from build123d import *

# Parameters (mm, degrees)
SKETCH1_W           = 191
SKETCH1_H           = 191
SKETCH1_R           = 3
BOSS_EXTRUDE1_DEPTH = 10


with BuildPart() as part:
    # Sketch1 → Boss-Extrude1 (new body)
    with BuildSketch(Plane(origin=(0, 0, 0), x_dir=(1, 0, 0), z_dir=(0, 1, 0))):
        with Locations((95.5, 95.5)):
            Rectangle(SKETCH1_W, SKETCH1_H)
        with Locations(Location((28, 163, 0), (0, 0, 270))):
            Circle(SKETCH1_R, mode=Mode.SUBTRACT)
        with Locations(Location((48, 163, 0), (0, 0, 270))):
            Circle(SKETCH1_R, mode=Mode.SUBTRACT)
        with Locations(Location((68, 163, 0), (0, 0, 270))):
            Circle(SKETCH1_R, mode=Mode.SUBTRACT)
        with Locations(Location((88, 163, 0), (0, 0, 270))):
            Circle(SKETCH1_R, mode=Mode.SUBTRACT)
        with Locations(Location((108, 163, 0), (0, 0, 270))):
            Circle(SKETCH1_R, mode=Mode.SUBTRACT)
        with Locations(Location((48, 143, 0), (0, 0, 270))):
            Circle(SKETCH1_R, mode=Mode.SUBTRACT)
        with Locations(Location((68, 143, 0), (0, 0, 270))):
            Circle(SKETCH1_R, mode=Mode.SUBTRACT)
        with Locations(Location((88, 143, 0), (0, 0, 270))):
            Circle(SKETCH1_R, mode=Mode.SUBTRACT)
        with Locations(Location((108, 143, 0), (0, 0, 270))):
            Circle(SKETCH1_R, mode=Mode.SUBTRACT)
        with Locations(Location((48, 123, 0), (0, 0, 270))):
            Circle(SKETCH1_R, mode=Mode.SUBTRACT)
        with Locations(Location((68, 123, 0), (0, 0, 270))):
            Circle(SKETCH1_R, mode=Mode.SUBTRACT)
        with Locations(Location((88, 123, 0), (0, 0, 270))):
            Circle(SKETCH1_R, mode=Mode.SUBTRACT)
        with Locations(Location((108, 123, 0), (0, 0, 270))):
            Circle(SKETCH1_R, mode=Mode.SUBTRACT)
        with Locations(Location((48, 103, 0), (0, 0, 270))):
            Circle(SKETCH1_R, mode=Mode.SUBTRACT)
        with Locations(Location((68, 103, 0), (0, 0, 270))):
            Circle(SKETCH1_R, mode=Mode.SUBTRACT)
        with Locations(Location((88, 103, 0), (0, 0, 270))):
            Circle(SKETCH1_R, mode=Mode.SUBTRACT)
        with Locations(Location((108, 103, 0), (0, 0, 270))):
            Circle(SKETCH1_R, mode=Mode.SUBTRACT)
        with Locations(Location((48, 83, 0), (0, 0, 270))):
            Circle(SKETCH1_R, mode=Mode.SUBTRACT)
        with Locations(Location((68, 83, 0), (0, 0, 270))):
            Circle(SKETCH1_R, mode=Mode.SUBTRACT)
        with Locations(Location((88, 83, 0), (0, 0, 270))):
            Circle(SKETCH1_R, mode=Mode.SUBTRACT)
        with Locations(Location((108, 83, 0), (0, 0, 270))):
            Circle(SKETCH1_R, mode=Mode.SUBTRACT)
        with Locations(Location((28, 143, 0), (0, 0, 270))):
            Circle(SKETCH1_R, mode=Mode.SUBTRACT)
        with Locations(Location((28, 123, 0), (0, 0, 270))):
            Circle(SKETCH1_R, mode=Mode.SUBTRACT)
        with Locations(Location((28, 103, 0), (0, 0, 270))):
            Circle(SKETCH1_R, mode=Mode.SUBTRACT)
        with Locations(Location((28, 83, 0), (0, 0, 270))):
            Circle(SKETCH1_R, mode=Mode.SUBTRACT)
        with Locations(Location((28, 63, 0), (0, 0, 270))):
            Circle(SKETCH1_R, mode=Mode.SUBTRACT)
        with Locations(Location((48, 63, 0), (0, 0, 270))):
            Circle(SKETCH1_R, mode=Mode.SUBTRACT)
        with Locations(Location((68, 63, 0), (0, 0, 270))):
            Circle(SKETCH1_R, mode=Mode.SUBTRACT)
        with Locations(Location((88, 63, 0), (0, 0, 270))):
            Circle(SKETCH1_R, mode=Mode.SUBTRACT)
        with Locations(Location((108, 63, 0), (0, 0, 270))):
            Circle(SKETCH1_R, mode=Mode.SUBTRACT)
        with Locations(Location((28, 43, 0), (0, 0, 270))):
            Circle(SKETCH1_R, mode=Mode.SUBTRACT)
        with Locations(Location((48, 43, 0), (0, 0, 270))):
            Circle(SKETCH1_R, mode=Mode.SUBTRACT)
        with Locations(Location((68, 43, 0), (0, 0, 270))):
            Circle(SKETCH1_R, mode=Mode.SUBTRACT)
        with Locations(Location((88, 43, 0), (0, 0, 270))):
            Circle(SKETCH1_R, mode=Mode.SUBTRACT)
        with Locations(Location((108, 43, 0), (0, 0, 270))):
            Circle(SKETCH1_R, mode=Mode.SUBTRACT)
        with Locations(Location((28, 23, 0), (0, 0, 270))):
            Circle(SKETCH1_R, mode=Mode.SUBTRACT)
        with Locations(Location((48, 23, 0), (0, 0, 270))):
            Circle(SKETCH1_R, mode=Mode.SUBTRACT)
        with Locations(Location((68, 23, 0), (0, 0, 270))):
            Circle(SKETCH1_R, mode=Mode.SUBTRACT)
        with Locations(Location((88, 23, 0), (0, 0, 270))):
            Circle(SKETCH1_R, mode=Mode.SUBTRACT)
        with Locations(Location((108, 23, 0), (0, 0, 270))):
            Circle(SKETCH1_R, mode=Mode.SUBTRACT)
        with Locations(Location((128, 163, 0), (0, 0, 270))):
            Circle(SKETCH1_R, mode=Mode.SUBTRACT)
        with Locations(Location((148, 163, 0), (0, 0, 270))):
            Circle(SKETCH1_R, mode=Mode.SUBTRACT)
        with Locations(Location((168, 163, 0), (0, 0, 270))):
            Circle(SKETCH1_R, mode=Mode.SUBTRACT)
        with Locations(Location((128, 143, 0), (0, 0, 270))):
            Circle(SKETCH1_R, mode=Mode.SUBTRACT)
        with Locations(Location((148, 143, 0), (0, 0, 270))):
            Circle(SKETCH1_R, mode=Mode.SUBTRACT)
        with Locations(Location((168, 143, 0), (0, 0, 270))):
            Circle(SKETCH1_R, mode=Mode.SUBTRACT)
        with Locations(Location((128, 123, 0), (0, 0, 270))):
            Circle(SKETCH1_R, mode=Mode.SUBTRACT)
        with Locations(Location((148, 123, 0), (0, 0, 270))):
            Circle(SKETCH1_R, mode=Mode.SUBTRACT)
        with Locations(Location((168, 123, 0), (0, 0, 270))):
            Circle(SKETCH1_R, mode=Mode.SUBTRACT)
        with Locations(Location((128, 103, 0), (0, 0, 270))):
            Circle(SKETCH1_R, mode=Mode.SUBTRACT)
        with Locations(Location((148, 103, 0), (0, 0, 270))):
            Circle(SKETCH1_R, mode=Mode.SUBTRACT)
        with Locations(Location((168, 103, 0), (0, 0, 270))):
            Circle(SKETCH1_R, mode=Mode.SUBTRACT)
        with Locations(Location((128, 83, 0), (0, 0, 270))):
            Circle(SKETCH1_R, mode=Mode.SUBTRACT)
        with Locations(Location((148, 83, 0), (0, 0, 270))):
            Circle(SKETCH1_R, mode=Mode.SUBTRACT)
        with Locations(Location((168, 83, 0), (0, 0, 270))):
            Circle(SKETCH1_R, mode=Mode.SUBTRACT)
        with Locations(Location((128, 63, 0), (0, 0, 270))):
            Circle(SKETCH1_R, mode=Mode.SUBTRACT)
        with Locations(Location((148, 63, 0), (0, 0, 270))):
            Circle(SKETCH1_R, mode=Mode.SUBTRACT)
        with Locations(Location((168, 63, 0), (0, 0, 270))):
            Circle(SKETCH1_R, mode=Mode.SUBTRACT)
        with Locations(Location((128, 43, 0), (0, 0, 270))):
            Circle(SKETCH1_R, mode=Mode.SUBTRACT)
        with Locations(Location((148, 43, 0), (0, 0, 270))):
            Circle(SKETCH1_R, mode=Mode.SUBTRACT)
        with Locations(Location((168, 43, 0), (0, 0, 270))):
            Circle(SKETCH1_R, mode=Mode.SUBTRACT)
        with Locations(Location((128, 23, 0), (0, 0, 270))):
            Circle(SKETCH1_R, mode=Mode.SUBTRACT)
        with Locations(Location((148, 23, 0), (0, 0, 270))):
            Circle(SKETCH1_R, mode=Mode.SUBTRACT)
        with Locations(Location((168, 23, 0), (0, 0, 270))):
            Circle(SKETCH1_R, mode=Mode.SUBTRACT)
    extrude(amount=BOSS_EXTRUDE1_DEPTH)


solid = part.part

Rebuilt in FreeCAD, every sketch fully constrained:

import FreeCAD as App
import Part
import Sketcher
from FreeCAD import Vector


def add_polygon(sketch, points):
    """Adds a closed chain of lines whose ends are joined by coincident constraints."""
    first, n = sketch.GeometryCount, len(points)
    for a, b in zip(points, points[1:] + points[:1]):
        sketch.addGeometry(Part.LineSegment(App.Vector(*a, 0), App.Vector(*b, 0)), False)
    for i in range(n):
        sketch.addConstraint(Sketcher.Constraint("Coincident", first + i, 2, first + (i + 1) % n, 1))

doc = App.newDocument("Part")
body = doc.addObject("PartDesign::Body", "Body")

# Sketch on XZ plane
sketch1 = doc.addObject("Sketcher::SketchObject", "Sketch")
body.addObject(sketch1)
sketch1.AttachmentSupport = (doc.XZ_Plane, [""])
sketch1.MapMode = "FlatFace"
add_polygon(sketch1, [(0, -191), (0, 0), (191, 0), (191, -191)])  # lines 0-3
sketch1.addGeometry(Part.Circle(Vector(28, -23, 0), Vector(0, 0, 1), 3), False)  # 4
sketch1.addGeometry(Part.Circle(Vector(48, -23, 0), Vector(0, 0, 1), 3), False)  # 5
sketch1.addGeometry(Part.Circle(Vector(28, -43, 0), Vector(0, 0, 1), 3), False)  # 6
sketch1.addGeometry(Part.Circle(Vector(48, -43, 0), Vector(0, 0, 1), 3), False)  # 7
sketch1.addGeometry(Part.Circle(Vector(68, -23, 0), Vector(0, 0, 1), 3), False)  # 8
sketch1.addGeometry(Part.Circle(Vector(88, -23, 0), Vector(0, 0, 1), 3), False)  # 9
sketch1.addGeometry(Part.Circle(Vector(68, -43, 0), Vector(0, 0, 1), 3), False)  # 10
sketch1.addGeometry(Part.Circle(Vector(88, -43, 0), Vector(0, 0, 1), 3), False)  # 11
sketch1.addGeometry(Part.Circle(Vector(28, -63, 0), Vector(0, 0, 1), 3), False)  # 12
sketch1.addGeometry(Part.Circle(Vector(48, -63, 0), Vector(0, 0, 1), 3), False)  # 13
sketch1.addGeometry(Part.Circle(Vector(28, -83, 0), Vector(0, 0, 1), 3), False)  # 14
sketch1.addGeometry(Part.Circle(Vector(48, -83, 0), Vector(0, 0, 1), 3), False)  # 15
sketch1.addGeometry(Part.Circle(Vector(68, -63, 0), Vector(0, 0, 1), 3), False)  # 16
sketch1.addGeometry(Part.Circle(Vector(88, -63, 0), Vector(0, 0, 1), 3), False)  # 17
sketch1.addGeometry(Part.Circle(Vector(68, -83, 0), Vector(0, 0, 1), 3), False)  # 18
sketch1.addGeometry(Part.Circle(Vector(88, -83, 0), Vector(0, 0, 1), 3), False)  # 19
sketch1.addGeometry(Part.Circle(Vector(108, -23, 0), Vector(0, 0, 1), 3), False)  # 20
sketch1.addGeometry(Part.Circle(Vector(128, -23, 0), Vector(0, 0, 1), 3), False)  # 21
sketch1.addGeometry(Part.Circle(Vector(108, -43, 0), Vector(0, 0, 1), 3), False)  # 22
sketch1.addGeometry(Part.Circle(Vector(128, -43, 0), Vector(0, 0, 1), 3), False)  # 23
sketch1.addGeometry(Part.Circle(Vector(148, -23, 0), Vector(0, 0, 1), 3), False)  # 24
sketch1.addGeometry(Part.Circle(Vector(168, -23, 0), Vector(0, 0, 1), 3), False)  # 25
sketch1.addGeometry(Part.Circle(Vector(148, -43, 0), Vector(0, 0, 1), 3), False)  # 26
sketch1.addGeometry(Part.Circle(Vector(168, -43, 0), Vector(0, 0, 1), 3), False)  # 27
sketch1.addGeometry(Part.Circle(Vector(108, -63, 0), Vector(0, 0, 1), 3), False)  # 28
sketch1.addGeometry(Part.Circle(Vector(128, -63, 0), Vector(0, 0, 1), 3), False)  # 29
sketch1.addGeometry(Part.Circle(Vector(108, -83, 0), Vector(0, 0, 1), 3), False)  # 30
sketch1.addGeometry(Part.Circle(Vector(128, -83, 0), Vector(0, 0, 1), 3), False)  # 31
sketch1.addGeometry(Part.Circle(Vector(148, -63, 0), Vector(0, 0, 1), 3), False)  # 32
sketch1.addGeometry(Part.Circle(Vector(168, -63, 0), Vector(0, 0, 1), 3), False)  # 33
sketch1.addGeometry(Part.Circle(Vector(148, -83, 0), Vector(0, 0, 1), 3), False)  # 34
sketch1.addGeometry(Part.Circle(Vector(168, -83, 0), Vector(0, 0, 1), 3), False)  # 35
sketch1.addGeometry(Part.Circle(Vector(28, -103, 0), Vector(0, 0, 1), 3), False)  # 36
sketch1.addGeometry(Part.Circle(Vector(48, -103, 0), Vector(0, 0, 1), 3), False)  # 37
sketch1.addGeometry(Part.Circle(Vector(28, -123, 0), Vector(0, 0, 1), 3), False)  # 38
sketch1.addGeometry(Part.Circle(Vector(48, -123, 0), Vector(0, 0, 1), 3), False)  # 39
sketch1.addGeometry(Part.Circle(Vector(68, -103, 0), Vector(0, 0, 1), 3), False)  # 40
sketch1.addGeometry(Part.Circle(Vector(88, -103, 0), Vector(0, 0, 1), 3), False)  # 41
sketch1.addGeometry(Part.Circle(Vector(68, -123, 0), Vector(0, 0, 1), 3), False)  # 42
sketch1.addGeometry(Part.Circle(Vector(88, -123, 0), Vector(0, 0, 1), 3), False)  # 43
sketch1.addGeometry(Part.Circle(Vector(28, -143, 0), Vector(0, 0, 1), 3), False)  # 44
sketch1.addGeometry(Part.Circle(Vector(48, -143, 0), Vector(0, 0, 1), 3), False)  # 45
sketch1.addGeometry(Part.Circle(Vector(28, -163, 0), Vector(0, 0, 1), 3), False)  # 46
sketch1.addGeometry(Part.Circle(Vector(48, -163, 0), Vector(0, 0, 1), 3), False)  # 47
sketch1.addGeometry(Part.Circle(Vector(68, -143, 0), Vector(0, 0, 1), 3), False)  # 48
sketch1.addGeometry(Part.Circle(Vector(88, -143, 0), Vector(0, 0, 1), 3), False)  # 49
sketch1.addGeometry(Part.Circle(Vector(68, -163, 0), Vector(0, 0, 1), 3), False)  # 50
sketch1.addGeometry(Part.Circle(Vector(88, -163, 0), Vector(0, 0, 1), 3), False)  # 51
sketch1.addGeometry(Part.Circle(Vector(108, -103, 0), Vector(0, 0, 1), 3), False)  # 52
sketch1.addGeometry(Part.Circle(Vector(128, -103, 0), Vector(0, 0, 1), 3), False)  # 53
sketch1.addGeometry(Part.Circle(Vector(108, -123, 0), Vector(0, 0, 1), 3), False)  # 54
sketch1.addGeometry(Part.Circle(Vector(128, -123, 0), Vector(0, 0, 1), 3), False)  # 55
sketch1.addGeometry(Part.Circle(Vector(148, -103, 0), Vector(0, 0, 1), 3), False)  # 56
sketch1.addGeometry(Part.Circle(Vector(168, -103, 0), Vector(0, 0, 1), 3), False)  # 57
sketch1.addGeometry(Part.Circle(Vector(148, -123, 0), Vector(0, 0, 1), 3), False)  # 58
sketch1.addGeometry(Part.Circle(Vector(168, -123, 0), Vector(0, 0, 1), 3), False)  # 59
sketch1.addGeometry(Part.Circle(Vector(108, -143, 0), Vector(0, 0, 1), 3), False)  # 60
sketch1.addGeometry(Part.Circle(Vector(128, -143, 0), Vector(0, 0, 1), 3), False)  # 61
sketch1.addGeometry(Part.Circle(Vector(108, -163, 0), Vector(0, 0, 1), 3), False)  # 62
sketch1.addGeometry(Part.Circle(Vector(128, -163, 0), Vector(0, 0, 1), 3), False)  # 63
sketch1.addGeometry(Part.Circle(Vector(148, -143, 0), Vector(0, 0, 1), 3), False)  # 64
sketch1.addGeometry(Part.Circle(Vector(168, -143, 0), Vector(0, 0, 1), 3), False)  # 65
sketch1.addGeometry(Part.Circle(Vector(148, -163, 0), Vector(0, 0, 1), 3), False)  # 66
sketch1.addGeometry(Part.Circle(Vector(168, -163, 0), Vector(0, 0, 1), 3), False)  # 67
sketch1.addConstraint([
    Sketcher.Constraint("Vertical", 0),
    Sketcher.Constraint("Horizontal", 1),
    Sketcher.Constraint("Vertical", 2),
    Sketcher.Constraint("Horizontal", 3),
    Sketcher.Constraint("Coincident", 0, 2, -1, 1),
    Sketcher.Constraint("Equal", 4, 5),
    Sketcher.Constraint("Equal", 5, 6),
    Sketcher.Constraint("Equal", 6, 7),
    Sketcher.Constraint("Equal", 7, 8),
    Sketcher.Constraint("Equal", 8, 9),
    Sketcher.Constraint("Equal", 9, 10),
    Sketcher.Constraint("Equal", 10, 11),
    Sketcher.Constraint("Equal", 11, 12),
    Sketcher.Constraint("Equal", 12, 13),
    Sketcher.Constraint("Equal", 13, 14),
    Sketcher.Constraint("Equal", 14, 15),
    Sketcher.Constraint("Equal", 15, 16),
    Sketcher.Constraint("Equal", 16, 17),
    Sketcher.Constraint("Equal", 17, 18),
    Sketcher.Constraint("Equal", 18, 19),
    Sketcher.Constraint("Equal", 19, 20),
    Sketcher.Constraint("Equal", 20, 21),
    Sketcher.Constraint("Equal", 21, 22),
    Sketcher.Constraint("Equal", 22, 23),
    Sketcher.Constraint("Equal", 23, 24),
    Sketcher.Constraint("Equal", 24, 25),
    Sketcher.Constraint("Equal", 25, 26),
    Sketcher.Constraint("Equal", 26, 27),
    Sketcher.Constraint("Equal", 27, 28),
    Sketcher.Constraint("Equal", 28, 29),
    Sketcher.Constraint("Equal", 29, 30),
    Sketcher.Constraint("Equal", 30, 31),
    Sketcher.Constraint("Equal", 31, 32),
    Sketcher.Constraint("Equal", 32, 33),
    Sketcher.Constraint("Equal", 33, 34),
    Sketcher.Constraint("Equal", 34, 35),
    Sketcher.Constraint("Equal", 35, 36),
    Sketcher.Constraint("Equal", 36, 37),
    Sketcher.Constraint("Equal", 37, 38),
    Sketcher.Constraint("Equal", 38, 39),
    Sketcher.Constraint("Equal", 39, 40),
    Sketcher.Constraint("Equal", 40, 41),
    Sketcher.Constraint("Equal", 41, 42),
    Sketcher.Constraint("Equal", 42, 43),
    Sketcher.Constraint("Equal", 43, 44),
    Sketcher.Constraint("Equal", 44, 45),
    Sketcher.Constraint("Equal", 45, 46),
    Sketcher.Constraint("Equal", 46, 47),
    Sketcher.Constraint("Equal", 47, 48),
    Sketcher.Constraint("Equal", 48, 49),
    Sketcher.Constraint("Equal", 49, 50),
    Sketcher.Constraint("Equal", 50, 51),
    Sketcher.Constraint("Equal", 51, 52),
    Sketcher.Constraint("Equal", 52, 53),
    Sketcher.Constraint("Equal", 53, 54),
    Sketcher.Constraint("Equal", 54, 55),
    Sketcher.Constraint("Equal", 55, 56),
    Sketcher.Constraint("Equal", 56, 57),
    Sketcher.Constraint("Equal", 57, 58),
    Sketcher.Constraint("Equal", 58, 59),
    Sketcher.Constraint("Equal", 59, 60),
    Sketcher.Constraint("Equal", 60, 61),
    Sketcher.Constraint("Equal", 61, 62),
    Sketcher.Constraint("Equal", 62, 63),
    Sketcher.Constraint("Equal", 63, 64),
    Sketcher.Constraint("Equal", 64, 65),
    Sketcher.Constraint("Equal", 65, 66),
    Sketcher.Constraint("Equal", 66, 67),
    Sketcher.Constraint("Horizontal", 4, 3, 5, 3),
    Sketcher.Constraint("Horizontal", 6, 3, 7, 3),
    Sketcher.Constraint("Horizontal", 5, 3, 8, 3),
    Sketcher.Constraint("Horizontal", 8, 3, 9, 3),
    Sketcher.Constraint("Horizontal", 7, 3, 10, 3),
    Sketcher.Constraint("Horizontal", 10, 3, 11, 3),
    Sketcher.Constraint("Horizontal", 12, 3, 13, 3),
    Sketcher.Constraint("Horizontal", 14, 3, 15, 3),
    Sketcher.Constraint("Horizontal", 13, 3, 16, 3),
    Sketcher.Constraint("Horizontal", 16, 3, 17, 3),
    Sketcher.Constraint("Horizontal", 15, 3, 18, 3),
    Sketcher.Constraint("Horizontal", 18, 3, 19, 3),
    Sketcher.Constraint("Horizontal", 9, 3, 20, 3),
    Sketcher.Constraint("Horizontal", 20, 3, 21, 3),
    Sketcher.Constraint("Horizontal", 11, 3, 22, 3),
    Sketcher.Constraint("Horizontal", 22, 3, 23, 3),
    Sketcher.Constraint("Horizontal", 21, 3, 24, 3),
    Sketcher.Constraint("Horizontal", 24, 3, 25, 3),
    Sketcher.Constraint("Horizontal", 23, 3, 26, 3),
    Sketcher.Constraint("Horizontal", 26, 3, 27, 3),
    Sketcher.Constraint("Horizontal", 17, 3, 28, 3),
    Sketcher.Constraint("Horizontal", 28, 3, 29, 3),
    Sketcher.Constraint("Horizontal", 19, 3, 30, 3),
    Sketcher.Constraint("Horizontal", 30, 3, 31, 3),
    Sketcher.Constraint("Horizontal", 29, 3, 32, 3),
    Sketcher.Constraint("Horizontal", 32, 3, 33, 3),
    Sketcher.Constraint("Horizontal", 31, 3, 34, 3),
    Sketcher.Constraint("Horizontal", 34, 3, 35, 3),
    Sketcher.Constraint("Horizontal", 36, 3, 37, 3),
    Sketcher.Constraint("Horizontal", 38, 3, 39, 3),
    Sketcher.Constraint("Horizontal", 37, 3, 40, 3),
    Sketcher.Constraint("Horizontal", 40, 3, 41, 3),
    Sketcher.Constraint("Horizontal", 39, 3, 42, 3),
    Sketcher.Constraint("Horizontal", 42, 3, 43, 3),
    Sketcher.Constraint("Horizontal", 44, 3, 45, 3),
    Sketcher.Constraint("Horizontal", 46, 3, 47, 3),
    Sketcher.Constraint("Horizontal", 45, 3, 48, 3),
    Sketcher.Constraint("Horizontal", 48, 3, 49, 3),
    Sketcher.Constraint("Horizontal", 47, 3, 50, 3),
    Sketcher.Constraint("Horizontal", 50, 3, 51, 3),
    Sketcher.Constraint("Horizontal", 41, 3, 52, 3),
    Sketcher.Constraint("Horizontal", 52, 3, 53, 3),
    Sketcher.Constraint("Horizontal", 43, 3, 54, 3),
    Sketcher.Constraint("Horizontal", 54, 3, 55, 3),
    Sketcher.Constraint("Horizontal", 53, 3, 56, 3),
    Sketcher.Constraint("Horizontal", 56, 3, 57, 3),
    Sketcher.Constraint("Horizontal", 55, 3, 58, 3),
    Sketcher.Constraint("Horizontal", 58, 3, 59, 3),
    Sketcher.Constraint("Horizontal", 49, 3, 60, 3),
    Sketcher.Constraint("Horizontal", 60, 3, 61, 3),
    Sketcher.Constraint("Horizontal", 51, 3, 62, 3),
    Sketcher.Constraint("Horizontal", 62, 3, 63, 3),
    Sketcher.Constraint("Horizontal", 61, 3, 64, 3),
    Sketcher.Constraint("Horizontal", 64, 3, 65, 3),
    Sketcher.Constraint("Horizontal", 63, 3, 66, 3),
    Sketcher.Constraint("Horizontal", 66, 3, 67, 3),
    Sketcher.Constraint("Vertical", 4, 3, 6, 3),
    Sketcher.Constraint("Vertical", 5, 3, 7, 3),
    Sketcher.Constraint("Vertical", 8, 3, 10, 3),
    Sketcher.Constraint("Vertical", 9, 3, 11, 3),
    Sketcher.Constraint("Vertical", 6, 3, 12, 3),
    Sketcher.Constraint("Vertical", 7, 3, 13, 3),
    Sketcher.Constraint("Vertical", 12, 3, 14, 3),
    Sketcher.Constraint("Vertical", 13, 3, 15, 3),
    Sketcher.Constraint("Vertical", 10, 3, 16, 3),
    Sketcher.Constraint("Vertical", 11, 3, 17, 3),
    Sketcher.Constraint("Vertical", 16, 3, 18, 3),
    Sketcher.Constraint("Vertical", 17, 3, 19, 3),
    Sketcher.Constraint("Vertical", 20, 3, 22, 3),
    Sketcher.Constraint("Vertical", 21, 3, 23, 3),
    Sketcher.Constraint("Vertical", 24, 3, 26, 3),
    Sketcher.Constraint("Vertical", 25, 3, 27, 3),
    Sketcher.Constraint("Vertical", 22, 3, 28, 3),
    Sketcher.Constraint("Vertical", 23, 3, 29, 3),
    Sketcher.Constraint("Vertical", 28, 3, 30, 3),
    Sketcher.Constraint("Vertical", 29, 3, 31, 3),
    Sketcher.Constraint("Vertical", 26, 3, 32, 3),
    Sketcher.Constraint("Vertical", 27, 3, 33, 3),
    Sketcher.Constraint("Vertical", 32, 3, 34, 3),
    Sketcher.Constraint("Vertical", 33, 3, 35, 3),
    Sketcher.Constraint("Vertical", 14, 3, 36, 3),
    Sketcher.Constraint("Vertical", 15, 3, 37, 3),
    Sketcher.Constraint("Vertical", 36, 3, 38, 3),
    Sketcher.Constraint("Vertical", 37, 3, 39, 3),
    Sketcher.Constraint("Vertical", 18, 3, 40, 3),
    Sketcher.Constraint("Vertical", 19, 3, 41, 3),
    Sketcher.Constraint("Vertical", 40, 3, 42, 3),
    Sketcher.Constraint("Vertical", 41, 3, 43, 3),
    Sketcher.Constraint("Vertical", 38, 3, 44, 3),
    Sketcher.Constraint("Vertical", 39, 3, 45, 3),
    Sketcher.Constraint("Vertical", 44, 3, 46, 3),
    Sketcher.Constraint("Vertical", 45, 3, 47, 3),
    Sketcher.Constraint("Vertical", 42, 3, 48, 3),
    Sketcher.Constraint("Vertical", 43, 3, 49, 3),
    Sketcher.Constraint("Vertical", 48, 3, 50, 3),
    Sketcher.Constraint("Vertical", 49, 3, 51, 3),
    Sketcher.Constraint("Vertical", 30, 3, 52, 3),
    Sketcher.Constraint("Vertical", 31, 3, 53, 3),
    Sketcher.Constraint("Vertical", 52, 3, 54, 3),
    Sketcher.Constraint("Vertical", 53, 3, 55, 3),
    Sketcher.Constraint("Vertical", 34, 3, 56, 3),
    Sketcher.Constraint("Vertical", 35, 3, 57, 3),
    Sketcher.Constraint("Vertical", 56, 3, 58, 3),
    Sketcher.Constraint("Vertical", 57, 3, 59, 3),
    Sketcher.Constraint("Vertical", 54, 3, 60, 3),
    Sketcher.Constraint("Vertical", 55, 3, 61, 3),
    Sketcher.Constraint("Vertical", 60, 3, 62, 3),
    Sketcher.Constraint("Vertical", 61, 3, 63, 3),
    Sketcher.Constraint("Vertical", 58, 3, 64, 3),
    Sketcher.Constraint("Vertical", 59, 3, 65, 3),
    Sketcher.Constraint("Vertical", 64, 3, 66, 3),
    Sketcher.Constraint("Vertical", 65, 3, 67, 3),
    Sketcher.Constraint("Equal", 3, 0),
    Sketcher.Constraint("Diameter", 4, 6.0),
    Sketcher.Constraint("DistanceX", 1, 1, 1, 2, 191.0),
    Sketcher.Constraint("DistanceX", -1, 1, 4, 3, 28.0),
    Sketcher.Constraint("DistanceY", 4, 3, -1, 1, 23.0),
    Sketcher.Constraint("DistanceX", -1, 1, 5, 3, 48.0),
    Sketcher.Constraint("DistanceY", 6, 3, -1, 1, 43.0),
    Sketcher.Constraint("DistanceX", -1, 1, 8, 3, 68.0),
    Sketcher.Constraint("DistanceX", -1, 1, 9, 3, 88.0),
    Sketcher.Constraint("DistanceY", 12, 3, -1, 1, 63.0),
    Sketcher.Constraint("DistanceY", 14, 3, -1, 1, 83.0),
    Sketcher.Constraint("DistanceX", -1, 1, 20, 3, 108.0),
    Sketcher.Constraint("DistanceX", -1, 1, 21, 3, 128.0),
    Sketcher.Constraint("DistanceX", -1, 1, 24, 3, 148.0),
    Sketcher.Constraint("DistanceX", -1, 1, 25, 3, 168.0),
    Sketcher.Constraint("DistanceY", 36, 3, -1, 1, 103.0),
    Sketcher.Constraint("DistanceY", 38, 3, -1, 1, 123.0),
    Sketcher.Constraint("DistanceY", 44, 3, -1, 1, 143.0),
    Sketcher.Constraint("DistanceY", 46, 3, -1, 1, 163.0),
])
pad1 = doc.addObject("PartDesign::Pad", "Pad")
body.addObject(pad1)
pad1.Profile = sketch1
pad1.Length = 10
pad1.Reversed = True

doc.recompute()
